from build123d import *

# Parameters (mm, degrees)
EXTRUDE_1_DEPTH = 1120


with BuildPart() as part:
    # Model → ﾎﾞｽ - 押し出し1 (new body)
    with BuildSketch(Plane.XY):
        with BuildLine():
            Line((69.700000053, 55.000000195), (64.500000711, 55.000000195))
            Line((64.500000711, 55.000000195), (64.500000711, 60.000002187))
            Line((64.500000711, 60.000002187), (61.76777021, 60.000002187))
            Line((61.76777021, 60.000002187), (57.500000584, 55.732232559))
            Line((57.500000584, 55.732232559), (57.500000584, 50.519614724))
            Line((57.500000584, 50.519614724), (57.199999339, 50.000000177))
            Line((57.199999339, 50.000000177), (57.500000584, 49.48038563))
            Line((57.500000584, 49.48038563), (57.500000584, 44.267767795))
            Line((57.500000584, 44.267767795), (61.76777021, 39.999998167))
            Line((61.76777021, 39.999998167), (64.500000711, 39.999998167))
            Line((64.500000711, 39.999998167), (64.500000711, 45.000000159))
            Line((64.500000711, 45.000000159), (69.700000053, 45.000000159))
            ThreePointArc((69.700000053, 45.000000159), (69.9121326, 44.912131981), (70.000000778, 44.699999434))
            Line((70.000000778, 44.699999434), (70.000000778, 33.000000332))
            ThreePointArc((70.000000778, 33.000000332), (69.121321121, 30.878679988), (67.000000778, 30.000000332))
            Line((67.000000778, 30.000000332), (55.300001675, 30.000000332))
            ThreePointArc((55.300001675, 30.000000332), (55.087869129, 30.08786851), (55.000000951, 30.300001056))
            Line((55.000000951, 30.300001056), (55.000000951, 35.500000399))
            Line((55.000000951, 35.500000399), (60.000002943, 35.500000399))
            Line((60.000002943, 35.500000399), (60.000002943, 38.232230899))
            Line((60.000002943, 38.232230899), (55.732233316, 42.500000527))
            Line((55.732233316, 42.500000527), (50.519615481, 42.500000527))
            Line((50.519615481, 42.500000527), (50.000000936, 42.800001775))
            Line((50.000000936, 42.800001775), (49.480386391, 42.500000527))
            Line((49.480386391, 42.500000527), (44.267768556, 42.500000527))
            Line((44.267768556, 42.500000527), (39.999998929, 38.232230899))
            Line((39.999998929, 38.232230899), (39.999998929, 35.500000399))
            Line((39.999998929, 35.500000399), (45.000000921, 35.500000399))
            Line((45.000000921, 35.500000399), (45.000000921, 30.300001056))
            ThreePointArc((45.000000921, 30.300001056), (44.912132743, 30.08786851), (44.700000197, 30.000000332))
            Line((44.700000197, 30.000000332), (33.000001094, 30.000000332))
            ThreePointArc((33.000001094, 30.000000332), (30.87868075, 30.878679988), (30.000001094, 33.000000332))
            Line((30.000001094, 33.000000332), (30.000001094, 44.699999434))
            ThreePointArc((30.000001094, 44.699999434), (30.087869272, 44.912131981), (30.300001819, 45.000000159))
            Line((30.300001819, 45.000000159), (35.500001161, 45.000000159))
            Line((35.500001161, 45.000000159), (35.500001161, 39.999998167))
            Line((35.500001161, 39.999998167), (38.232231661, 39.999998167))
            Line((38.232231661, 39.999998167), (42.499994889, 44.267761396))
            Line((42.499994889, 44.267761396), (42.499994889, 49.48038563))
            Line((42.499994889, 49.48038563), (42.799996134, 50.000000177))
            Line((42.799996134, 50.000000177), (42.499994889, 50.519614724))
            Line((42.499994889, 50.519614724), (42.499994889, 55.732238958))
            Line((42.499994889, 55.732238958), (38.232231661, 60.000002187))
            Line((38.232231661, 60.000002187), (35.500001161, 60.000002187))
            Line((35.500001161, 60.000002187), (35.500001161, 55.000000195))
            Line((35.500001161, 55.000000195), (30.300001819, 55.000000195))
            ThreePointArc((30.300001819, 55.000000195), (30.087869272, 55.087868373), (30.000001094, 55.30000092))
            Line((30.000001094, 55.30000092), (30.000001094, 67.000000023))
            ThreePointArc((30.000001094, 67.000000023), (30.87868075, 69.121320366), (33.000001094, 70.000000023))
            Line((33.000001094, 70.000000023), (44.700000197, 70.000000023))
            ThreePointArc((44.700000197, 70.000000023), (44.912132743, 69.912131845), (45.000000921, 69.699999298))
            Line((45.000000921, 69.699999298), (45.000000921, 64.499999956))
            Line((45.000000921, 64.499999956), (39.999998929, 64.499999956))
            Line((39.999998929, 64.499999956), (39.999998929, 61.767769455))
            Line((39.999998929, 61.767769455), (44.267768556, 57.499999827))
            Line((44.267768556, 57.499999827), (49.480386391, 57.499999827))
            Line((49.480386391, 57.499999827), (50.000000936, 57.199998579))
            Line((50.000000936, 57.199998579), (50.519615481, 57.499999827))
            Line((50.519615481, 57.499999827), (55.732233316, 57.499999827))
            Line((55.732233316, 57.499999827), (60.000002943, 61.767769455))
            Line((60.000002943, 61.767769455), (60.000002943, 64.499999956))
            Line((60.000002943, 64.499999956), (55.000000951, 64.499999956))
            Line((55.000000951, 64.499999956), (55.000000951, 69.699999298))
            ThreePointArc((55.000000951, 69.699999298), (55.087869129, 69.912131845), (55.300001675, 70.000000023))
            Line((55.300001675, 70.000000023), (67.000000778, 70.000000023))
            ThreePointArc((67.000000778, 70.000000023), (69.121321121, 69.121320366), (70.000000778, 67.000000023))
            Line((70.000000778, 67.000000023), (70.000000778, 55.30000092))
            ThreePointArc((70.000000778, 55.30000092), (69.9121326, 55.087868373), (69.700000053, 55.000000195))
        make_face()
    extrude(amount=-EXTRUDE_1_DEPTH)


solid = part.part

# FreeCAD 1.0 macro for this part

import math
import FreeCAD as App
import Part
import Sketcher
Q = App.Units.Quantity

doc = App.newDocument("Part")
body = doc.addObject("PartDesign::Body", "Body")

sketch1 = body.newObject("Sketcher::SketchObject", "Sketch")
sketch1.AttachmentSupport = (doc.getObject("XY_Plane"), [""])
sketch1.MapMode = "FlatFace"
sketch1.addGeometry([
    Part.LineSegment(App.Vector(64.500001, 55, 0), App.Vector(69.7, 55, 0)),
    Part.ArcOfCircle(Part.Circle(App.Vector(69.7, 55.300001, 0), App.Vector(0, 0, 1), 0.300001), math.radians(-90), math.radians(0)),
    Part.LineSegment(App.Vector(70.000001, 55.300001, 0), App.Vector(70.000001, 67, 0)),
    Part.ArcOfCircle(Part.Circle(App.Vector(67.000001, 67, 0), App.Vector(0, 0, 1), 3), math.radians(0), math.radians(90)),
    Part.LineSegment(App.Vector(67.000001, 70, 0), App.Vector(55.300002, 70, 0)),
    Part.ArcOfCircle(Part.Circle(App.Vector(55.300002, 69.699999, 0), App.Vector(0, 0, 1), 0.300001), math.radians(90), math.radians(180)),
    Part.LineSegment(App.Vector(55.000001, 69.699999, 0), App.Vector(55.000001, 64.5, 0)),
    Part.LineSegment(App.Vector(55.000001, 64.5, 0), App.Vector(60.000003, 64.5, 0)),
    Part.LineSegment(App.Vector(60.000003, 64.5, 0), App.Vector(60.000003, 61.767769, 0)),
    Part.LineSegment(App.Vector(60.000003, 61.767769, 0), App.Vector(55.732233, 57.5, 0)),
    Part.LineSegment(App.Vector(55.732233, 57.5, 0), App.Vector(50.519615, 57.5, 0)),
    Part.LineSegment(App.Vector(50.519615, 57.5, 0), App.Vector(50.000001, 57.199999, 0)),
    Part.LineSegment(App.Vector(50.000001, 57.199999, 0), App.Vector(49.480386, 57.5, 0)),
    Part.LineSegment(App.Vector(49.480386, 57.5, 0), App.Vector(44.267769, 57.5, 0)),
    Part.LineSegment(App.Vector(44.267769, 57.5, 0), App.Vector(39.999999, 61.767769, 0)),
    Part.LineSegment(App.Vector(39.999999, 61.767769, 0), App.Vector(39.999999, 64.5, 0)),
    Part.LineSegment(App.Vector(39.999999, 64.5, 0), App.Vector(45.000001, 64.5, 0)),
    Part.LineSegment(App.Vector(45.000001, 64.5, 0), App.Vector(45.000001, 69.699999, 0)),
    Part.ArcOfCircle(Part.Circle(App.Vector(44.7, 69.699999, 0), App.Vector(0, 0, 1), 0.300001), math.radians(0), math.radians(90)),
    Part.LineSegment(App.Vector(44.7, 70, 0), App.Vector(33.000001, 70, 0)),
    Part.ArcOfCircle(Part.Circle(App.Vector(33.000001, 67, 0), App.Vector(0, 0, 1), 3), math.radians(90), math.radians(180)),
    Part.LineSegment(App.Vector(30.000001, 67, 0), App.Vector(30.000001, 55.300001, 0)),
    Part.ArcOfCircle(Part.Circle(App.Vector(30.300002, 55.300001, 0), App.Vector(0, 0, 1), 0.300001), math.radians(180), math.radians(270)),
    Part.LineSegment(App.Vector(30.300002, 55, 0), App.Vector(35.500001, 55, 0)),
    Part.LineSegment(App.Vector(35.500001, 55, 0), App.Vector(35.500001, 60.000002, 0)),
    Part.LineSegment(App.Vector(35.500001, 60.000002, 0), App.Vector(38.232232, 60.000002, 0)),
    Part.LineSegment(App.Vector(38.232232, 60.000002, 0), App.Vector(42.499995, 55.732239, 0)),
    Part.LineSegment(App.Vector(42.499995, 55.732239, 0), App.Vector(42.499995, 50.519615, 0)),
    Part.LineSegment(App.Vector(42.499995, 50.519615, 0), App.Vector(42.799996, 50, 0)),
    Part.LineSegment(App.Vector(42.799996, 50, 0), App.Vector(42.499995, 49.480386, 0)),
    Part.LineSegment(App.Vector(42.499995, 49.480386, 0), App.Vector(42.499995, 44.267761, 0)),
    Part.LineSegment(App.Vector(42.499995, 44.267761, 0), App.Vector(38.232232, 39.999998, 0)),
    Part.LineSegment(App.Vector(38.232232, 39.999998, 0), App.Vector(35.500001, 39.999998, 0)),
    Part.LineSegment(App.Vector(35.500001, 39.999998, 0), App.Vector(35.500001, 45, 0)),
    Part.LineSegment(App.Vector(35.500001, 45, 0), App.Vector(30.300002, 45, 0)),
    Part.ArcOfCircle(Part.Circle(App.Vector(30.300002, 44.699999, 0), App.Vector(0, 0, 1), 0.300001), math.radians(90), math.radians(180)),
    Part.LineSegment(App.Vector(30.000001, 44.699999, 0), App.Vector(30.000001, 33, 0)),
    Part.ArcOfCircle(Part.Circle(App.Vector(33.000001, 33, 0), App.Vector(0, 0, 1), 3), math.radians(180), math.radians(270)),
    Part.LineSegment(App.Vector(33.000001, 30, 0), App.Vector(44.7, 30, 0)),
    Part.ArcOfCircle(Part.Circle(App.Vector(44.7, 30.300001, 0), App.Vector(0, 0, 1), 0.300001), math.radians(-90), math.radians(0)),
    Part.LineSegment(App.Vector(45.000001, 30.300001, 0), App.Vector(45.000001, 35.5, 0)),
    Part.LineSegment(App.Vector(45.000001, 35.5, 0), App.Vector(39.999999, 35.5, 0)),
    Part.LineSegment(App.Vector(39.999999, 35.5, 0), App.Vector(39.999999, 38.232231, 0)),
    Part.LineSegment(App.Vector(39.999999, 38.232231, 0), App.Vector(44.267769, 42.500001, 0)),
    Part.LineSegment(App.Vector(44.267769, 42.500001, 0), App.Vector(49.480386, 42.500001, 0)),
    Part.LineSegment(App.Vector(49.480386, 42.500001, 0), App.Vector(50.000001, 42.800002, 0)),
    Part.LineSegment(App.Vector(50.000001, 42.800002, 0), App.Vector(50.519615, 42.500001, 0)),
    Part.LineSegment(App.Vector(50.519615, 42.500001, 0), App.Vector(55.732233, 42.500001, 0)),
    Part.LineSegment(App.Vector(55.732233, 42.500001, 0), App.Vector(60.000003, 38.232231, 0)),
    Part.LineSegment(App.Vector(60.000003, 38.232231, 0), App.Vector(60.000003, 35.5, 0)),
    Part.LineSegment(App.Vector(60.000003, 35.5, 0), App.Vector(55.000001, 35.5, 0)),
    Part.LineSegment(App.Vector(55.000001, 35.5, 0), App.Vector(55.000001, 30.300001, 0)),
    Part.ArcOfCircle(Part.Circle(App.Vector(55.300002, 30.300001, 0), App.Vector(0, 0, 1), 0.300001), math.radians(-180), math.radians(-90)),
    Part.LineSegment(App.Vector(55.300002, 30, 0), App.Vector(67.000001, 30, 0)),
    Part.ArcOfCircle(Part.Circle(App.Vector(67.000001, 33, 0), App.Vector(0, 0, 1), 3), math.radians(-90), math.radians(0)),
    Part.LineSegment(App.Vector(70.000001, 33, 0), App.Vector(70.000001, 44.699999, 0)),
    Part.ArcOfCircle(Part.Circle(App.Vector(69.7, 44.699999, 0), App.Vector(0, 0, 1), 0.300001), math.radians(0), math.radians(90)),
    Part.LineSegment(App.Vector(69.7, 45, 0), App.Vector(64.500001, 45, 0)),
    Part.LineSegment(App.Vector(64.500001, 45, 0), App.Vector(64.500001, 39.999998, 0)),
    Part.LineSegment(App.Vector(64.500001, 39.999998, 0), App.Vector(61.76777, 39.999998, 0)),
    Part.LineSegment(App.Vector(61.76777, 39.999998, 0), App.Vector(57.500001, 44.267768, 0)),
    Part.LineSegment(App.Vector(57.500001, 44.267768, 0), App.Vector(57.500001, 49.480386, 0)),
    Part.LineSegment(App.Vector(57.500001, 49.480386, 0), App.Vector(57.199999, 50, 0)),
    Part.LineSegment(App.Vector(57.199999, 50, 0), App.Vector(57.500001, 50.519615, 0)),
    Part.LineSegment(App.Vector(57.500001, 50.519615, 0), App.Vector(57.500001, 55.732233, 0)),
    Part.LineSegment(App.Vector(57.500001, 55.732233, 0), App.Vector(61.76777, 60.000002, 0)),
    Part.LineSegment(App.Vector(61.76777, 60.000002, 0), App.Vector(64.500001, 60.000002, 0)),
    Part.LineSegment(App.Vector(64.500001, 60.000002, 0), App.Vector(64.500001, 55, 0)),
], False)
sketch1.addConstraint([
    Sketcher.Constraint("Tangent", 0, 2, 1, 1),
    Sketcher.Constraint("Tangent", 1, 2, 2, 1),
    Sketcher.Constraint("Tangent", 2, 2, 3, 1),
    Sketcher.Constraint("Tangent", 3, 2, 4, 1),
    Sketcher.Constraint("Tangent", 4, 2, 5, 1),
    Sketcher.Constraint("Tangent", 5, 2, 6, 1),
    Sketcher.Constraint("Coincident", 6, 2, 7, 1),
    Sketcher.Constraint("Coincident", 7, 2, 8, 1),
    Sketcher.Constraint("Coincident", 8, 2, 9, 1),
    Sketcher.Constraint("Coincident", 9, 2, 10, 1),
    Sketcher.Constraint("Coincident", 10, 2, 11, 1),
    Sketcher.Constraint("Coincident", 11, 2, 12, 1),
    Sketcher.Constraint("Coincident", 12, 2, 13, 1),
    Sketcher.Constraint("Coincident", 13, 2, 14, 1),
    Sketcher.Constraint("Coincident", 14, 2, 15, 1),
    Sketcher.Constraint("Coincident", 15, 2, 16, 1),
    Sketcher.Constraint("Coincident", 16, 2, 17, 1),
    Sketcher.Constraint("Tangent", 17, 2, 18, 1),
    Sketcher.Constraint("Tangent", 18, 2, 19, 1),
    Sketcher.Constraint("Tangent", 19, 2, 20, 1),
    Sketcher.Constraint("Tangent", 20, 2, 21, 1),
    Sketcher.Constraint("Tangent", 21, 2, 22, 1),
    Sketcher.Constraint("Tangent", 22, 2, 23, 1),
    Sketcher.Constraint("Coincident", 23, 2, 24, 1),
    Sketcher.Constraint("Coincident", 24, 2, 25, 1),
    Sketcher.Constraint("Coincident", 25, 2, 26, 1),
    Sketcher.Constraint("Coincident", 26, 2, 27, 1),
    Sketcher.Constraint("Coincident", 27, 2, 28, 1),
    Sketcher.Constraint("Coincident", 28, 2, 29, 1),
    Sketcher.Constraint("Coincident", 29, 2, 30, 1),
    Sketcher.Constraint("Coincident", 30, 2, 31, 1),
    Sketcher.Constraint("Coincident", 31, 2, 32, 1),
    Sketcher.Constraint("Coincident", 32, 2, 33, 1),
    Sketcher.Constraint("Coincident", 33, 2, 34, 1),
    Sketcher.Constraint("Tangent", 34, 2, 35, 1),
    Sketcher.Constraint("Tangent", 35, 2, 36, 1),
    Sketcher.Constraint("Tangent", 36, 2, 37, 1),
    Sketcher.Constraint("Tangent", 37, 2, 38, 1),
    Sketcher.Constraint("Tangent", 38, 2, 39, 1),
    Sketcher.Constraint("Tangent", 39, 2, 40, 1),
    Sketcher.Constraint("Coincident", 40, 2, 41, 1),
    Sketcher.Constraint("Coincident", 41, 2, 42, 1),
    Sketcher.Constraint("Coincident", 42, 2, 43, 1),
    Sketcher.Constraint("Coincident", 43, 2, 44, 1),
    Sketcher.Constraint("Coincident", 44, 2, 45, 1),
    Sketcher.Constraint("Coincident", 45, 2, 46, 1),
    Sketcher.Constraint("Coincident", 46, 2, 47, 1),
    Sketcher.Constraint("Coincident", 47, 2, 48, 1),
    Sketcher.Constraint("Coincident", 48, 2, 49, 1),
    Sketcher.Constraint("Coincident", 49, 2, 50, 1),
    Sketcher.Constraint("Coincident", 50, 2, 51, 1),
    Sketcher.Constraint("Tangent", 51, 2, 52, 1),
    Sketcher.Constraint("Tangent", 52, 2, 53, 1),
    Sketcher.Constraint("Tangent", 53, 2, 54, 1),
    Sketcher.Constraint("Tangent", 54, 2, 55, 1),
    Sketcher.Constraint("Tangent", 55, 2, 56, 1),
    Sketcher.Constraint("Tangent", 56, 2, 57, 1),
    Sketcher.Constraint("Coincident", 57, 2, 58, 1),
    Sketcher.Constraint("Coincident", 58, 2, 59, 1),
    Sketcher.Constraint("Coincident", 59, 2, 60, 1),
    Sketcher.Constraint("Coincident", 60, 2, 61, 1),
    Sketcher.Constraint("Coincident", 61, 2, 62, 1),
    Sketcher.Constraint("Coincident", 62, 2, 63, 1),
    Sketcher.Constraint("Coincident", 63, 2, 64, 1),
    Sketcher.Constraint("Coincident", 64, 2, 65, 1),
    Sketcher.Constraint("Coincident", 65, 2, 66, 1),
    Sketcher.Constraint("Coincident", 66, 2, 67, 1),
    Sketcher.Constraint("Coincident", 67, 2, 0, 1),
    Sketcher.Constraint("Horizontal", 0),
    Sketcher.Constraint("Vertical", 2),
    Sketcher.Constraint("Horizontal", 4),
    Sketcher.Constraint("Vertical", 6),
    Sketcher.Constraint("Horizontal", 7),
    Sketcher.Constraint("Vertical", 8),
    Sketcher.Constraint("Horizontal", 10),
    Sketcher.Constraint("Horizontal", 13),
    Sketcher.Constraint("Vertical", 15),
    Sketcher.Constraint("Horizontal", 16),
    Sketcher.Constraint("Vertical", 17),
    Sketcher.Constraint("Horizontal", 19),
    Sketcher.Constraint("Vertical", 21),
    Sketcher.Constraint("Horizontal", 23),
    Sketcher.Constraint("Vertical", 24),
    Sketcher.Constraint("Horizontal", 25),
    Sketcher.Constraint("Vertical", 27),
    Sketcher.Constraint("Vertical", 30),
    Sketcher.Constraint("Horizontal", 32),
    Sketcher.Constraint("Vertical", 33),
    Sketcher.Constraint("Horizontal", 34),
    Sketcher.Constraint("Vertical", 36),
    Sketcher.Constraint("Horizontal", 38),
    Sketcher.Constraint("Vertical", 40),
    Sketcher.Constraint("Horizontal", 41),
    Sketcher.Constraint("Vertical", 42),
    Sketcher.Constraint("Horizontal", 44),
    Sketcher.Constraint("Horizontal", 47),
    Sketcher.Constraint("Vertical", 49),
    Sketcher.Constraint("Horizontal", 50),
    Sketcher.Constraint("Vertical", 51),
    Sketcher.Constraint("Horizontal", 53),
    Sketcher.Constraint("Vertical", 55),
    Sketcher.Constraint("Horizontal", 57),
    Sketcher.Constraint("Vertical", 58),
    Sketcher.Constraint("Horizontal", 59),
    Sketcher.Constraint("Vertical", 61),
    Sketcher.Constraint("Vertical", 64),
    Sketcher.Constraint("Horizontal", 66),
    Sketcher.Constraint("Vertical", 67),
    Sketcher.Constraint("Equal", 1, 5),
    Sketcher.Constraint("Equal", 5, 18),
    Sketcher.Constraint("Equal", 3, 20),
    Sketcher.Constraint("Equal", 18, 22),
    Sketcher.Constraint("Equal", 22, 35),
    Sketcher.Constraint("Equal", 20, 37),
    Sketcher.Constraint("Equal", 35, 39),
    Sketcher.Constraint("Equal", 39, 52),
    Sketcher.Constraint("Equal", 37, 54),
    Sketcher.Constraint("Equal", 52, 56),
    Sketcher.Constraint("Perpendicular", 9, 14),
    Sketcher.Constraint("Parallel", 14, 26),
    Sketcher.Constraint("Perpendicular", 11, 28),
    Sketcher.Constraint("Perpendicular", 12, 29),
    Sketcher.Constraint("Perpendicular", 26, 31),
    Sketcher.Constraint("Parallel", 31, 43),
    Sketcher.Constraint("Perpendicular", 28, 45),
    Sketcher.Constraint("Perpendicular", 29, 46),
    Sketcher.Constraint("Perpendicular", 43, 48),
    Sketcher.Constraint("Parallel", 48, 60),
    Sketcher.Constraint("Perpendicular", 45, 62),
    Sketcher.Constraint("Perpendicular", 46, 63),
    Sketcher.Constraint("Perpendicular", 60, 65),
    Sketcher.Constraint("Horizontal", 5, 3, 18, 3),
    Sketcher.Constraint("Horizontal", 1, 3, 22, 3),
    Sketcher.Constraint("Horizontal", 39, 3, 52, 3),
    Sketcher.Constraint("Horizontal", 35, 3, 56, 3),
    Sketcher.Constraint("Horizontal", 10, 2, 12, 2),
    Sketcher.Constraint("Horizontal", 8, 2, 14, 2),
    Sketcher.Constraint("Horizontal", 7, 2, 15, 2),
    Sketcher.Constraint("Horizontal", 44, 2, 46, 2),
    Sketcher.Constraint("Horizontal", 42, 2, 48, 2),
    Sketcher.Constraint("Horizontal", 41, 2, 49, 2),
    Sketcher.Constraint("Horizontal", 32, 2, 58, 2),
    Sketcher.Constraint("Horizontal", 29, 2, 61, 2),
    Sketcher.Constraint("Horizontal", 28, 2, 62, 2),
    Sketcher.Constraint("Horizontal", 27, 2, 63, 2),
    Sketcher.Constraint("Horizontal", 25, 2, 65, 2),
    Sketcher.Constraint("Vertical", 22, 3, 35, 3),
    Sketcher.Constraint("Vertical", 18, 3, 39, 3),
    Sketcher.Constraint("Vertical", 5, 3, 52, 3),
    Sketcher.Constraint("Vertical", 3, 3, 54, 3),
    Sketcher.Constraint("Vertical", 27, 2, 29, 2),
    Sketcher.Constraint("Vertical", 25, 2, 31, 2),
    Sketcher.Constraint("Vertical", 24, 2, 32, 2),
    Sketcher.Constraint("Vertical", 15, 2, 41, 2),
    Sketcher.Constraint("Vertical", 13, 2, 43, 2),
    Sketcher.Constraint("Vertical", 12, 2, 44, 2),
    Sketcher.Constraint("Vertical", 11, 2, 45, 2),
    Sketcher.Constraint("Vertical", 10, 2, 46, 2),
    Sketcher.Constraint("Vertical", 9, 2, 47, 2),
    Sketcher.Constraint("Vertical", 8, 2, 48, 2),
    Sketcher.Constraint("Vertical", 59, 2, 65, 2),
    Sketcher.Constraint("Vertical", 58, 2, 66, 2),
    Sketcher.Constraint("Equal", 10, 13),
    Sketcher.Constraint("Equal", 7, 16),
    Sketcher.Constraint("Equal", 4, 19),
    Sketcher.Constraint("Equal", 0, 23),
    Sketcher.Constraint("Equal", 32, 59),
    Sketcher.Constraint("Equal", 53, 2),
    Sketcher.Constraint("Equal", 57, 6),
    Sketcher.Constraint("Equal", 66, 8),
    Sketcher.Constraint("Equal", 50, 24),
    Sketcher.Constraint("Equal", 27, 30),
    Sketcher.Constraint("Equal", 24, 33),
    Sketcher.Constraint("Equal", 21, 36),
    Sketcher.Constraint("Equal", 17, 40),
    Sketcher.Constraint("Equal", 15, 42),
    Sketcher.Constraint("Equal", 47, 61),
    Sketcher.Constraint("Equal", 12, 28),
    Sketcher.Constraint("Equal", 48, 60),
    Sketcher.Constraint("Radius", 3, Q("3 mm")),
    Sketcher.Constraint("Radius", 1, Q("0.300001 mm")),
    Sketcher.Constraint("DistanceX", 7, 1, 7, 2, Q("5.000002 mm")),
    Sketcher.Constraint("DistanceX", 0, 1, 0, 2, Q("5.199999 mm")),
    Sketcher.Constraint("DistanceX", 4, 2, 4, 1, Q("11.699999 mm")),
    Sketcher.Constraint("DistanceX", -1, 1, 3, 3, Q("67.000001 mm")),
    Sketcher.Constraint("DistanceY", -1, 1, 3, 3, Q("67 mm")),
    Sketcher.Constraint("DistanceX", -1, 1, 20, 3, Q("33.000001 mm")),
    Sketcher.Constraint("Distance", 11, Q("0.6 mm")),
    Sketcher.Constraint("DistanceY", -1, 1, 9, 2, Q("57.5 mm")),
    Sketcher.Constraint("DistanceY", -1, 1, 11, 2, Q("57.199999 mm")),
    Sketcher.Constraint("DistanceX", 25, 1, 25, 2, Q("2.732231 mm")),
    Sketcher.Constraint("Distance", 26, Q("6.035529 mm")),
])
pad1 = body.newObject("PartDesign::Pad", "Pad")
pad1.Profile = sketch1
pad1.Length = 1120
pad1.Reversed = True

doc.recompute()
